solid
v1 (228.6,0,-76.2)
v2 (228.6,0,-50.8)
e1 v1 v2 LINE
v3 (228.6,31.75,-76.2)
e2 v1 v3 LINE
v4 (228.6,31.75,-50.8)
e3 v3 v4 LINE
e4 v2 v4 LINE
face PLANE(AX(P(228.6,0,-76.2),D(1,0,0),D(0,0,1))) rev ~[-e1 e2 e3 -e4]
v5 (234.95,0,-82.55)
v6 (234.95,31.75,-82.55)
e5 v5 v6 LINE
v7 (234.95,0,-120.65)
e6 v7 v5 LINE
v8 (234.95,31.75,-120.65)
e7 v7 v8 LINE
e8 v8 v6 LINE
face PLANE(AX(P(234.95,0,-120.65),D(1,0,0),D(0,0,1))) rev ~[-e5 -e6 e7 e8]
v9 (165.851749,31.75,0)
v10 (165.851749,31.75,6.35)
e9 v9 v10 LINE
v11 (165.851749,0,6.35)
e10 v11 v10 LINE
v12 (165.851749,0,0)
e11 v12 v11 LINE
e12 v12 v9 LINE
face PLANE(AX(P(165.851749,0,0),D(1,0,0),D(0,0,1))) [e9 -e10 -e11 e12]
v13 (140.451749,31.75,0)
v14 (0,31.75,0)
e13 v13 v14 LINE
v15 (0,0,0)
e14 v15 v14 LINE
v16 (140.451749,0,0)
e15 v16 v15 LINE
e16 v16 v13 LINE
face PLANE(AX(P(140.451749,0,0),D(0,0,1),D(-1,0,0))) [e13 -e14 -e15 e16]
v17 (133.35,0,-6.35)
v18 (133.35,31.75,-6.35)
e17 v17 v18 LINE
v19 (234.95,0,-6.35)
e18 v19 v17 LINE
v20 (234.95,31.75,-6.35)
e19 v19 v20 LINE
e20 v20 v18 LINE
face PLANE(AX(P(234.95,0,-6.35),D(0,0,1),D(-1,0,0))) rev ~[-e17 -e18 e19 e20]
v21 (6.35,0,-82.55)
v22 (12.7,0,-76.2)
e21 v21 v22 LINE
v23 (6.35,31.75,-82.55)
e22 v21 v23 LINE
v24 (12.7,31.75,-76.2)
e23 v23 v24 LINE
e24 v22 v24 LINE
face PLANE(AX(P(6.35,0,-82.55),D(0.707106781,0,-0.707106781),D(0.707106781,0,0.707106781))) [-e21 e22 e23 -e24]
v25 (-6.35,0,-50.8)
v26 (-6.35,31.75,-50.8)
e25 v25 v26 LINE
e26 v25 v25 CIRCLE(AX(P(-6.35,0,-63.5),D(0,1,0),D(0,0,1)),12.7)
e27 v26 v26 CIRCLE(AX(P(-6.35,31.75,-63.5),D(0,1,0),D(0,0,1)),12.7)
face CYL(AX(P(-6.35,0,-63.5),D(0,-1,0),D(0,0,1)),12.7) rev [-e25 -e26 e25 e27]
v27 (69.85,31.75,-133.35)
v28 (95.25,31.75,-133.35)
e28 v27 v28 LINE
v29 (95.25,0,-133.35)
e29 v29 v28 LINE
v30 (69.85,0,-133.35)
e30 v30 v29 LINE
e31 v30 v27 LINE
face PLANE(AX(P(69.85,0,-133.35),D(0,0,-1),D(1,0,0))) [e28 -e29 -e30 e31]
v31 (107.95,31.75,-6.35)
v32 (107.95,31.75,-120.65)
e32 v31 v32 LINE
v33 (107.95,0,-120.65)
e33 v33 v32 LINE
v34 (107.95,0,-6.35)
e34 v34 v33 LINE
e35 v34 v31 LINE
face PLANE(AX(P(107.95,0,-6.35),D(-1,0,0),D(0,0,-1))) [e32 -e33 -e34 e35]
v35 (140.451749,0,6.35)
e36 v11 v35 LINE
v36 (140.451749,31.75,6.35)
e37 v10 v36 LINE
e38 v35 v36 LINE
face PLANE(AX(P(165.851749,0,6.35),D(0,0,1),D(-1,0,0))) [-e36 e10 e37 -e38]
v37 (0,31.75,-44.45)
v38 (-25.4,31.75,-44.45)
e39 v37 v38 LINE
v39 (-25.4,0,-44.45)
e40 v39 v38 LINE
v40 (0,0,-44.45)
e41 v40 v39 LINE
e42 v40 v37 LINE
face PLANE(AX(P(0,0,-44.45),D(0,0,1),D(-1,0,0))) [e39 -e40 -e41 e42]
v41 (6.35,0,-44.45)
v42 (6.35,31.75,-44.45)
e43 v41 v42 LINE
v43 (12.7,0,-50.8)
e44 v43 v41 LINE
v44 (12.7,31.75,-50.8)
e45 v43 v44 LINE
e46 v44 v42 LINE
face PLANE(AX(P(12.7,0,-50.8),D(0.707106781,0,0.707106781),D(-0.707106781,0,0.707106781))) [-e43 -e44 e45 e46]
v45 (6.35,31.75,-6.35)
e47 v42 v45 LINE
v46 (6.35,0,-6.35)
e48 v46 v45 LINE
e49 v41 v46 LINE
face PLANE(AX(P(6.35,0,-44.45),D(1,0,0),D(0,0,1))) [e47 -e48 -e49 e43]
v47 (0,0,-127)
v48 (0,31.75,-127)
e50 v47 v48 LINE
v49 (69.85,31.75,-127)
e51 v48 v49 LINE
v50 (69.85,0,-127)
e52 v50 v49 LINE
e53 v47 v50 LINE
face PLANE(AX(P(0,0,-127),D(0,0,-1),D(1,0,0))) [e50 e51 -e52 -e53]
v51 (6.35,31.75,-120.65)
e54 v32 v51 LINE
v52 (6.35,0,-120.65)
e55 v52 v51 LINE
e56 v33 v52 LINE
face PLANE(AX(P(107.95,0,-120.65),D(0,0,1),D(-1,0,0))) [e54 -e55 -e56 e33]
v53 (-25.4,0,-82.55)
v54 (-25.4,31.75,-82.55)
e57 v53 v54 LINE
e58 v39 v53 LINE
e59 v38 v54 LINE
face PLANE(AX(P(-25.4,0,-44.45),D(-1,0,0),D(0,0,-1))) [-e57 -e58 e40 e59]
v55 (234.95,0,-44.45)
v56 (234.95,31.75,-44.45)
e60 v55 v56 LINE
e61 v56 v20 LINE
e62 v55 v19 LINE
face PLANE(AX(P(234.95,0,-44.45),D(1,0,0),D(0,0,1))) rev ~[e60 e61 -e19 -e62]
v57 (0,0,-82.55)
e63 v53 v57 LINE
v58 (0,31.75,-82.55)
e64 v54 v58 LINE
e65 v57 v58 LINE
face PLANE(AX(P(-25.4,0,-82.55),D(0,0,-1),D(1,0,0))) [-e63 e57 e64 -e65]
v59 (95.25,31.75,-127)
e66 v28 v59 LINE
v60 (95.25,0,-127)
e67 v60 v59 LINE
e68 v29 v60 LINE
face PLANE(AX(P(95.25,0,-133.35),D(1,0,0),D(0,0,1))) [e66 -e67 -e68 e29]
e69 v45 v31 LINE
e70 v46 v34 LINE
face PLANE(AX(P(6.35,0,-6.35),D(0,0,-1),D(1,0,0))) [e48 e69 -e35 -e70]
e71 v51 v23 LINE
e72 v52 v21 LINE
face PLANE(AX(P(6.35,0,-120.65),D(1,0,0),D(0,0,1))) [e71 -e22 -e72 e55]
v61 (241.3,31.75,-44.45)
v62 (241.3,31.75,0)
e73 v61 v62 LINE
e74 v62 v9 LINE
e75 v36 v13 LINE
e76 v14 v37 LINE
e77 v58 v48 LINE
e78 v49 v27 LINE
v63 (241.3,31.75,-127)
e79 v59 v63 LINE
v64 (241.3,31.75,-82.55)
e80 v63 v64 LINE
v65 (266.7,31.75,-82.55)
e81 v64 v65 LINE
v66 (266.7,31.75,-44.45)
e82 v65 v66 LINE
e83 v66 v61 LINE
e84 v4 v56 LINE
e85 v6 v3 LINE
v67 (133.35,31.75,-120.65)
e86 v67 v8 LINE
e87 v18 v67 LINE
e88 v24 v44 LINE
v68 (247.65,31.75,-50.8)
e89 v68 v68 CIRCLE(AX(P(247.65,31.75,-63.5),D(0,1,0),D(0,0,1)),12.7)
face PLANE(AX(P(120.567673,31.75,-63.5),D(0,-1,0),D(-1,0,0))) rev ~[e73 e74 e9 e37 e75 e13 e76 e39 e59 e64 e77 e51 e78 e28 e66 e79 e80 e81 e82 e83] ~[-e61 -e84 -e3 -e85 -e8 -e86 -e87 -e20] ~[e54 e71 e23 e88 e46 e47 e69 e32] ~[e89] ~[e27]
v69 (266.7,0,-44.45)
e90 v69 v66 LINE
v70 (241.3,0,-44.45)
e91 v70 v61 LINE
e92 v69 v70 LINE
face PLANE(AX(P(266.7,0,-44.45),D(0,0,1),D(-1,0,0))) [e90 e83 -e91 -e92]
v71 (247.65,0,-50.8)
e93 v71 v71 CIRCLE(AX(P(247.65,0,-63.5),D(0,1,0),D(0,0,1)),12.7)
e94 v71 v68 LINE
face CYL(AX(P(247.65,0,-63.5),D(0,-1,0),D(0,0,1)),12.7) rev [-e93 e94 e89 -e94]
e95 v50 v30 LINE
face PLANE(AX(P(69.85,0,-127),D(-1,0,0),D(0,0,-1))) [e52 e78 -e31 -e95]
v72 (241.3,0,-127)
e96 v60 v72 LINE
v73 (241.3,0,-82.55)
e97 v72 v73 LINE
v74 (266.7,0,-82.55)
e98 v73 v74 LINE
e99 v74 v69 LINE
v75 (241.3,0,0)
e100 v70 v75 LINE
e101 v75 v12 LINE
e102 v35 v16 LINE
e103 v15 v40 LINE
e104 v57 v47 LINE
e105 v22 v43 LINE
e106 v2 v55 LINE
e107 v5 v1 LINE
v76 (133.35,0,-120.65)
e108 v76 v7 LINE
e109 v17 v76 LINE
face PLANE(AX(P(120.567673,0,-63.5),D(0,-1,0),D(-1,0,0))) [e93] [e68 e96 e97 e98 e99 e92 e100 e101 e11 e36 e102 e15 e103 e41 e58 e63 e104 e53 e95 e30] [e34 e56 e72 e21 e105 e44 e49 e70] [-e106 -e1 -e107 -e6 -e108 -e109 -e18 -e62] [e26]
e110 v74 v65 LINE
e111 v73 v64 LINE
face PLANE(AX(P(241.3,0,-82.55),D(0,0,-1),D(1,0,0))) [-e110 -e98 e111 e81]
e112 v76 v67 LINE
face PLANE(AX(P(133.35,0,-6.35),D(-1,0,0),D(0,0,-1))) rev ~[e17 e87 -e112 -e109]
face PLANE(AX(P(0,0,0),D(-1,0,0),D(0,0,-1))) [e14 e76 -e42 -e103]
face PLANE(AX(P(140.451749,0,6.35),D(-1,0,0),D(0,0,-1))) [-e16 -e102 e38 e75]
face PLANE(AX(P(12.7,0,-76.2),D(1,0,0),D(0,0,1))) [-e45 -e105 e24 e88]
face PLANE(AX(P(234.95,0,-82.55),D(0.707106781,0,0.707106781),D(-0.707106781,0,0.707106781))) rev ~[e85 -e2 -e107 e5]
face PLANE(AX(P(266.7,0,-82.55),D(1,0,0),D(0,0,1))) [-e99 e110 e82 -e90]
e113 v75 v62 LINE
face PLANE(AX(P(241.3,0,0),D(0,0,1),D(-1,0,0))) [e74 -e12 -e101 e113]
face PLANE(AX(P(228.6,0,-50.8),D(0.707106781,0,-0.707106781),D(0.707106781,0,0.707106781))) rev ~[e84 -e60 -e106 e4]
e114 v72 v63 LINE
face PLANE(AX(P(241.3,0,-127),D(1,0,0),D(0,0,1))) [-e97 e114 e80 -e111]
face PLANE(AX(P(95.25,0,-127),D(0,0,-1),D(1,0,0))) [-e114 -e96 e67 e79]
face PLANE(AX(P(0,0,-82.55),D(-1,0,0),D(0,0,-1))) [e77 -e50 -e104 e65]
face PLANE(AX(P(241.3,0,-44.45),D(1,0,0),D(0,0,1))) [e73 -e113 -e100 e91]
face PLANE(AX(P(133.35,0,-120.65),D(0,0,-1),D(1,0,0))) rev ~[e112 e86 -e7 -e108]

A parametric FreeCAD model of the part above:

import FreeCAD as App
import Part
import Sketcher
from FreeCAD import Vector
Q = App.Units.Quantity


def add_polygon(sketch, points):
    """Adds a closed chain of lines whose ends are joined by coincident constraints."""
    first, n = sketch.GeometryCount, len(points)
    for a, b in zip(points, points[1:] + points[:1]):
        sketch.addGeometry(Part.LineSegment(App.Vector(*a, 0), App.Vector(*b, 0)), False)
    for i in range(n):
        sketch.addConstraint(Sketcher.Constraint("Coincident", first + i, 2, first + (i + 1) % n, 1))

doc = App.newDocument("Part")
body = doc.addObject("PartDesign::Body", "Body")

sketch1 = body.newObject("Sketcher::SketchObject", "Sketch")
sketch1.AttachmentSupport = (doc.getObject("XZ_Plane"), [""])
sketch1.MapMode = "FlatFace"
add_polygon(sketch1, [(241, -127), (95, -127), (95, -133), (70, -133), (70, -127), (0, -127), (0, -83), (-25, -83), (-25, -44), (0, -44), (0, 0), (140, 0), (140, 6), (166, 6), (166, 0), (241, 0), (241, -44), (267, -44), (267, -83), (241, -83)])
sketch1.addGeometry(Part.Circle(Vector(248, -64, 0), Vector(0, 0, 1), 13), False)
sketch1.addGeometry(Part.Circle(Vector(-6, -64, 0), Vector(0, 0, 1), 13), False)
add_polygon(sketch1, [(235, -83), (229, -76), (229, -51), (235, -44), (235, -6), (133, -6), (133, -121), (235, -121)])
add_polygon(sketch1, [(6, -83), (6, -121), (108, -121), (108, -6), (6, -6), (6, -44), (13, -51), (13, -76)])
sketch1.addConstraint([
    Sketcher.Constraint("Horizontal", 0),
    Sketcher.Constraint("Vertical", 1),
    Sketcher.Constraint("Horizontal", 2),
    Sketcher.Constraint("Vertical", 3),
    Sketcher.Constraint("Horizontal", 4),
    Sketcher.Constraint("Vertical", 5),
    Sketcher.Constraint("Horizontal", 6),
    Sketcher.Constraint("Vertical", 7),
    Sketcher.Constraint("Horizontal", 8),
    Sketcher.Constraint("Vertical", 9),
    Sketcher.Constraint("Horizontal", 10),
    Sketcher.Constraint("Vertical", 11),
    Sketcher.Constraint("Horizontal", 12),
    Sketcher.Constraint("Vertical", 13),
    Sketcher.Constraint("Horizontal", 14),
    Sketcher.Constraint("Vertical", 15),
    Sketcher.Constraint("Horizontal", 16),
    Sketcher.Constraint("Vertical", 17),
    Sketcher.Constraint("Horizontal", 18),
    Sketcher.Constraint("Vertical", 19),
    Sketcher.Constraint("Vertical", 23),
    Sketcher.Constraint("Vertical", 25),
    Sketcher.Constraint("Horizontal", 26),
    Sketcher.Constraint("Vertical", 27),
    Sketcher.Constraint("Horizontal", 28),
    Sketcher.Constraint("Vertical", 29),
    Sketcher.Constraint("Vertical", 30),
    Sketcher.Constraint("Horizontal", 31),
    Sketcher.Constraint("Vertical", 32),
    Sketcher.Constraint("Horizontal", 33),
    Sketcher.Constraint("Vertical", 34),
    Sketcher.Constraint("Vertical", 36),
    Sketcher.Constraint("Coincident", 9, 2, -1, 1),
    Sketcher.Constraint("Equal", 20, 21),
    Sketcher.Constraint("PointOnObject", 4, 2, -2),
    Sketcher.Constraint("PointOnObject", 13, 2, -1),
    Sketcher.Constraint("Perpendicular", 22, 24),
    Sketcher.Constraint("Perpendicular", 24, 35),
    Sketcher.Constraint("Perpendicular", 35, 37),
    Sketcher.Constraint("Horizontal", 20, 3, 21, 3),
    Sketcher.Constraint("Horizontal", 0, 2, 3, 2),
    Sketcher.Constraint("Horizontal", 8, 2, 15, 2),
    Sketcher.Constraint("Horizontal", 6, 2, 17, 2),
    Sketcher.Constraint("Horizontal", 16, 2, 24, 2),
    Sketcher.Constraint("Horizontal", 18, 2, 29, 2),
    Sketcher.Constraint("Horizontal", 28, 2, 30, 2),
    Sketcher.Constraint("Horizontal", 26, 2, 32, 2),
    Sketcher.Constraint("Horizontal", 24, 2, 34, 2),
    Sketcher.Constraint("Horizontal", 23, 2, 35, 2),
    Sketcher.Constraint("Horizontal", 22, 2, 36, 2),
    Sketcher.Constraint("Horizontal", 29, 2, 37, 2),
    Sketcher.Constraint("Vertical", 15, 2, 18, 2),
    Sketcher.Constraint("Vertical", 25, 2, 28, 2),
    Sketcher.Constraint("Vertical", 30, 2, 33, 2),
    Sketcher.Constraint("Equal", 2, 6),
    Sketcher.Constraint("Equal", 8, 12),
    Sketcher.Constraint("Equal", 12, 16),
    Sketcher.Constraint("Equal", 28, 31),
    Sketcher.Constraint("Equal", 5, 9),
    Sketcher.Constraint("Equal", 3, 11),
    Sketcher.Constraint("Equal", 18, 23),
    Sketcher.Constraint("Equal", 17, 25),
    Sketcher.Constraint("Equal", 25, 29),
    Sketcher.Constraint("Diameter", 20, Q("1 in")),
    Sketcher.Constraint("DistanceX", 2, 2, 2, 1, Q("1 in")),
    Sketcher.Constraint("DistanceX", 26, 2, 26, 1, Q("4 in")),
    Sketcher.Constraint("DistanceY", 7, 1, 7, 2, Q("1.5 in")),
    Sketcher.Constraint("DistanceY", 0, 2, -1, 1, Q("5 in")),
    Sketcher.Constraint("DistanceX", -1, 1, 22, 2, Q("9 in")),
    Sketcher.Constraint("DistanceX", 21, 3, 20, 3, Q("10 in")),
    Sketcher.Constraint("DistanceX", 21, 3, 0, 2, Q("4 in")),
    Sketcher.Constraint("DistanceY", 2, 2, 5, 2, Q("2 in")),
    Sketcher.Constraint("DistanceX", 31, 2, 27, 2, Q("1 in")),
    Sketcher.Constraint("DistanceX", 0, 2, 0, 1, Q("5.75 in")),
    Sketcher.Constraint("DistanceX", 4, 2, 4, 1, Q("2.75 in")),
    Sketcher.Constraint("DistanceY", 20, 3, -1, 1, Q("2.5 in")),
    Sketcher.Constraint("DistanceX", 10, 1, 10, 2, Q("140.451749 mm")),
])
pad1 = body.newObject("PartDesign::Pad", "Pad")
pad1.Profile = sketch1
pad1.Length = Q("1.25 in")
pad1.Reversed = True

doc.recompute()
